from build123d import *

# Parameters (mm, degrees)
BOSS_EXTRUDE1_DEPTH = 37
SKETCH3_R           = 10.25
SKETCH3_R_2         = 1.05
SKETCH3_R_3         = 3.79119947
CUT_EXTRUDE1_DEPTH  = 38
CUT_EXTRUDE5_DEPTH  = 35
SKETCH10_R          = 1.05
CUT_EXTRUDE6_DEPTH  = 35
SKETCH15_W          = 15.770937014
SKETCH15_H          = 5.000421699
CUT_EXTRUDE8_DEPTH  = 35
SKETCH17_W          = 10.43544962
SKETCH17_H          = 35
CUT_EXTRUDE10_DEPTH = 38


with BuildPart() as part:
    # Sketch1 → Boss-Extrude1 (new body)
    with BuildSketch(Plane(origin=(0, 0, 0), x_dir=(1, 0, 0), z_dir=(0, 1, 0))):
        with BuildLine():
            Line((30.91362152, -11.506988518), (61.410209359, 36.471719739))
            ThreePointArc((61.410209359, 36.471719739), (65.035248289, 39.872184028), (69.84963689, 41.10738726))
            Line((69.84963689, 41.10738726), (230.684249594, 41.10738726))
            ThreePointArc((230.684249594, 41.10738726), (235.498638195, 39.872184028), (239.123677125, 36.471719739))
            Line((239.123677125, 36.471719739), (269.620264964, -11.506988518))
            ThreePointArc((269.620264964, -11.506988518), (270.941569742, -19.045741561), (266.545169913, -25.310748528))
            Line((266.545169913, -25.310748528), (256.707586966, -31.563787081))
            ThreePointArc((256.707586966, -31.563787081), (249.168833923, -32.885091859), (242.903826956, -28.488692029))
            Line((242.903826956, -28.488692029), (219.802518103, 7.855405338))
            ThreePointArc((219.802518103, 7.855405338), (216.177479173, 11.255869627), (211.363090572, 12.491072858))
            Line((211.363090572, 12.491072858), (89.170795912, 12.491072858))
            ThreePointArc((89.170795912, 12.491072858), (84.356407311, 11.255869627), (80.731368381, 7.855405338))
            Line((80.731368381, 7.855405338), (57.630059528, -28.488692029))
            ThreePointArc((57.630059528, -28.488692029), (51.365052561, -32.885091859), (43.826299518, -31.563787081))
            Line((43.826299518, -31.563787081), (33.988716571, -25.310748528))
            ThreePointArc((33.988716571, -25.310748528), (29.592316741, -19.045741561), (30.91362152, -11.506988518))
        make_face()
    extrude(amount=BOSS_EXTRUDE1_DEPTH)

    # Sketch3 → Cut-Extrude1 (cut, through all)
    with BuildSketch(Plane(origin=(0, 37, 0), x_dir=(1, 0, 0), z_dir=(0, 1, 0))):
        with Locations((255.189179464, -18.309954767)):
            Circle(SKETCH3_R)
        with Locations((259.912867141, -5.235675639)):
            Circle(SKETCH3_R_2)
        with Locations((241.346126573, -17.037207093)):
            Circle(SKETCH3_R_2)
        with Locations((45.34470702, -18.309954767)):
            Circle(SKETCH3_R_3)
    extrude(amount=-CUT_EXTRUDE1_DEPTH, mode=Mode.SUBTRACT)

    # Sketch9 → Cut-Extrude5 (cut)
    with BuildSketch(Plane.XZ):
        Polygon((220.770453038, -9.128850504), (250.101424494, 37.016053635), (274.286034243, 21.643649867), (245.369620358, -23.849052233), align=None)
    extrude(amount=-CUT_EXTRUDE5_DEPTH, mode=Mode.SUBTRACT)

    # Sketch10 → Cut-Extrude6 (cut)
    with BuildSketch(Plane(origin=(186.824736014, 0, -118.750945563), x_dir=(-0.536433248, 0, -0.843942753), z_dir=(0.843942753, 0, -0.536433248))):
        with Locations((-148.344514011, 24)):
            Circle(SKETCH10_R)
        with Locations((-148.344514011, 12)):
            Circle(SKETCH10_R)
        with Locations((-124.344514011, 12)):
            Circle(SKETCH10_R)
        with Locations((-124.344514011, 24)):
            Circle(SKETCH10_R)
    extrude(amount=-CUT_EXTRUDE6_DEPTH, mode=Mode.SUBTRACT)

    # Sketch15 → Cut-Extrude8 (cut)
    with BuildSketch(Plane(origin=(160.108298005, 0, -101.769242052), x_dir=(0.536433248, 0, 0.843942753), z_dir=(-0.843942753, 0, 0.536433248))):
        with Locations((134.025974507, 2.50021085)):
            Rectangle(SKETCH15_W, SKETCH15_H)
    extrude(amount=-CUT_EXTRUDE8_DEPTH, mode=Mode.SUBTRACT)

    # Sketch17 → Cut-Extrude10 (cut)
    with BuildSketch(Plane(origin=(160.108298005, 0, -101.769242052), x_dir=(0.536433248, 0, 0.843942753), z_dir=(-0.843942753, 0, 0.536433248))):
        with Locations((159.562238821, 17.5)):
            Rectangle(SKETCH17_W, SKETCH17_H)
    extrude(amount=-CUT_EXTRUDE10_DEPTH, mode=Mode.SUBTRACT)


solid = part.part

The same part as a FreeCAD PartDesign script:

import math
import FreeCAD as App
import Part
import Sketcher

V = App.Vector
Q = App.Units.Quantity


def add_polygon(sketch, points):
    """Adds a closed chain of lines whose ends are joined by coincident constraints."""
    first, n = sketch.GeometryCount, len(points)
    for a, b in zip(points, points[1:] + points[:1]):
        sketch.addGeometry(Part.LineSegment(App.Vector(*a, 0), App.Vector(*b, 0)), False)
    for i in range(n):
        sketch.addConstraint(Sketcher.Constraint("Coincident", first + i, 2, first + (i + 1) % n, 1))

doc = App.newDocument("Part")
body = doc.addObject("PartDesign::Body", "Body")

# Sketch on XZ plane
sketch1 = body.newObject("Sketcher::SketchObject", "Sketch")
sketch1.AttachmentSupport = (doc.getObject("XZ_Plane"), [""])
sketch1.MapMode = "FlatFace"
sketch1.addGeometry([
    Part.LineSegment(V(61.410209, -36.47172, 0), V(30.913622, 11.506989, 0)),  # 0
    Part.ArcOfCircle(Part.Circle(V(39.353049, 16.871321, 0), V(0, 0, 1), 10), math.radians(122.441163), math.radians(212.441163)),  # 1
    Part.LineSegment(V(33.988717, 25.310749, 0), V(43.8263, 31.563787, 0)),  # 2
    Part.ArcOfCircle(Part.Circle(V(49.190632, 23.12436, 0), V(0, 0, 1), 10), math.radians(32.441163), math.radians(122.441163)),  # 3
    Part.LineSegment(V(57.63006, 28.488692, 0), V(80.731368, -7.855405, 0)),  # 4
    Part.ArcOfCircle(Part.Circle(V(89.170796, -2.491073, 0), V(0, 0, 1), 10), math.radians(-147.558837), math.radians(-90)),  # 5
    Part.LineSegment(V(89.170796, -12.491073, 0), V(211.363091, -12.491073, 0)),  # 6
    Part.ArcOfCircle(Part.Circle(V(211.363091, -2.491073, 0), V(0, 0, 1), 10), math.radians(-90), math.radians(-32.441163)),  # 7
    Part.LineSegment(V(219.802518, -7.855405, 0), V(242.903827, 28.488692, 0)),  # 8
    Part.ArcOfCircle(Part.Circle(V(251.343254, 23.12436, 0), V(0, 0, 1), 10), math.radians(57.558837), math.radians(147.558837)),  # 9
    Part.LineSegment(V(256.707587, 31.563787, 0), V(266.54517, 25.310749, 0)),  # 10
    Part.ArcOfCircle(Part.Circle(V(261.180837, 16.871321, 0), V(0, 0, 1), 10), math.radians(-32.441163), math.radians(57.558837)),  # 11
    Part.LineSegment(V(269.620265, 11.506989, 0), V(239.123677, -36.47172, 0)),  # 12
    Part.ArcOfCircle(Part.Circle(V(230.68425, -31.107387, 0), V(0, 0, 1), 10), math.radians(-90), math.radians(-32.441163)),  # 13
    Part.LineSegment(V(230.68425, -41.107387, 0), V(69.849637, -41.107387, 0)),  # 14
    Part.ArcOfCircle(Part.Circle(V(69.849637, -31.107387, 0), V(0, 0, 1), 10), math.radians(-147.558837), math.radians(-90)),  # 15
], False)
sketch1.addConstraint([
    Sketcher.Constraint("Tangent", 0, 2, 1, 2),
    Sketcher.Constraint("Tangent", 1, 1, 2, 1),
    Sketcher.Constraint("Tangent", 2, 2, 3, 2),
    Sketcher.Constraint("Tangent", 3, 1, 4, 1),
    Sketcher.Constraint("Tangent", 4, 2, 5, 1),
    Sketcher.Constraint("Tangent", 5, 2, 6, 1),
    Sketcher.Constraint("Tangent", 6, 2, 7, 1),
    Sketcher.Constraint("Tangent", 7, 2, 8, 1),
    Sketcher.Constraint("Tangent", 8, 2, 9, 2),
    Sketcher.Constraint("Tangent", 9, 1, 10, 1),
    Sketcher.Constraint("Tangent", 10, 2, 11, 2),
    Sketcher.Constraint("Tangent", 11, 1, 12, 1),
    Sketcher.Constraint("Tangent", 12, 2, 13, 2),
    Sketcher.Constraint("Tangent", 13, 1, 14, 1),
    Sketcher.Constraint("Tangent", 14, 2, 15, 2),
    Sketcher.Constraint("Tangent", 15, 1, 0, 1),
    Sketcher.Constraint("Horizontal", 6),
    Sketcher.Constraint("Horizontal", 14),
    Sketcher.Constraint("Equal", 1, 3),
    Sketcher.Constraint("Equal", 3, 5),
    Sketcher.Constraint("Equal", 5, 7),
    Sketcher.Constraint("Equal", 7, 9),
    Sketcher.Constraint("Equal", 9, 11),
    Sketcher.Constraint("Equal", 11, 13),
    Sketcher.Constraint("Equal", 13, 15),
    Sketcher.Constraint("Perpendicular", 0, 2),
    Sketcher.Constraint("Perpendicular", 2, 4),
    Sketcher.Constraint("Perpendicular", 8, 10),
    Sketcher.Constraint("Perpendicular", 10, 12),
    Sketcher.Constraint("Horizontal", 3, 3, 9, 3),
    Sketcher.Constraint("Horizontal", 1, 3, 11, 3),
    Sketcher.Constraint("Horizontal", 4, 2, 7, 2),
    Sketcher.Constraint("Radius", 1, Q("10 mm")),
    Sketcher.Constraint("DistanceX", -1, 1, 2, 2, Q("43.8263 mm")),
    Sketcher.Constraint("DistanceY", 0, 2, 2, 2, Q("20.056799 mm")),
    Sketcher.Constraint("DistanceX", 6, 1, 6, 2, Q("122.192295 mm")),
    Sketcher.Constraint("DistanceX", 14, 2, 14, 1, Q("160.834613 mm")),
    Sketcher.Constraint("DistanceX", -1, 1, 1, 3, Q("39.353049 mm")),
    Sketcher.Constraint("DistanceY", -1, 1, 1, 3, Q("16.871321 mm")),
    Sketcher.Constraint("DistanceX", -1, 1, 7, 3, Q("211.363091 mm")),
])
pad1 = body.newObject("PartDesign::Pad", "Pad")
pad1.Profile = sketch1
pad1.Length = 37
pad1.Reversed = True

# Sketch on XZ plane
sketch2 = body.newObject("Sketcher::SketchObject", "Sketch001")
sketch2.AttachmentSupport = (doc.getObject("XZ_Plane"), [""])
sketch2.MapMode = "FlatFace"
sketch2.AttachmentOffset = App.Placement(V(0, 0, -37), App.Rotation())
sketch2.addGeometry([
    Part.Circle(V(255.189179, 18.309955, 0), V(0, 0, 1), 10.25),
    Part.Circle(V(259.912867, 5.235676, 0), V(0, 0, 1), 1.05),
    Part.Circle(V(241.346127, 17.037207, 0), V(0, 0, 1), 1.05),
    Part.Circle(V(45.344707, 18.309955, 0), V(0, 0, 1), 3.791199),
], False)
sketch2.addConstraint([
    Sketcher.Constraint("Equal", 1, 2),
    Sketcher.Constraint("Horizontal", 0, 3, 3, 3),
    Sketcher.Constraint("Diameter", 0, Q("20.5 mm")),
    Sketcher.Constraint("Diameter", 1, Q("2.1 mm")),
    Sketcher.Constraint("Diameter", 3, Q("7.582399 mm")),
    Sketcher.Constraint("DistanceX", -1, 1, 0, 3, Q("255.189179 mm")),
    Sketcher.Constraint("DistanceY", 1, 3, 0, 3, Q("13.074279 mm")),
    Sketcher.Constraint("DistanceX", 2, 3, 1, 3, Q("18.566741 mm")),
    Sketcher.Constraint("DistanceY", 1, 3, 2, 3, Q("11.801531 mm")),
    Sketcher.Constraint("DistanceX", 3, 3, 2, 3, Q("196.00142 mm")),
    Sketcher.Constraint("DistanceY", -1, 1, 0, 3, Q("18.309955 mm")),
    Sketcher.Constraint("DistanceX", -1, 1, 1, 3, Q("259.912867 mm")),
])
pocket1 = body.newObject("PartDesign::Pocket", "Pocket")
pocket1.Profile = sketch2
pocket1.Type = "ThroughAll"
pocket1.Reversed = True

# Sketch on XZ plane
sketch3 = body.newObject("Sketcher::SketchObject", "Sketch002")
sketch3.AttachmentSupport = (doc.getObject("XZ_Plane"), [""])
sketch3.MapMode = "FlatFace"
add_polygon(sketch3, [(250.101424, 37.016054), (220.770453, -9.128851), (245.36962, -23.849052), (274.286034, 21.64365)])  # lines 0-3
sketch3.addConstraint([
    Sketcher.Constraint("Parallel", 0, 2),
    Sketcher.Constraint("Perpendicular", 2, 3),
    Sketcher.Constraint("DistanceY", 1, 2, 0, 2, Q("14.720202 mm")),
    Sketcher.Constraint("DistanceY", 0, 2, 2, 2, Q("30.7725 mm")),
    Sketcher.Constraint("DistanceY", 0, 2, -1, 1, Q("9.128851 mm")),
    Sketcher.Constraint("DistanceX", -1, 1, 1, 2, Q("245.36962 mm")),
    Sketcher.Constraint("DistanceX", 0, 2, 2, 2, Q("53.515581 mm")),
    Sketcher.Constraint("DistanceX", 3, 2, 2, 2, Q("24.18461 mm")),
])
pocket2 = body.newObject("PartDesign::Pocket", "Pocket001")
pocket2.Profile = sketch3
pocket2.Length = 35

# Sketch on an angled plane
sketch4 = body.newObject("Sketcher::SketchObject", "Sketch003")
sketch4.Placement = App.Placement(V(186.824736, 0, -118.750946), App.Rotation(V(-0.536433248, 0, -0.843942753), V(0, 1, 0), V(0.843942753, 0, -0.536433248), "ZXY"))
sketch4.addGeometry([
    Part.Circle(V(-148.344514, 24, 0), V(0, 0, 1), 1.05),
    Part.Circle(V(-148.344514, 12, 0), V(0, 0, 1), 1.05),
    Part.Circle(V(-124.344514, 12, 0), V(0, 0, 1), 1.05),
    Part.Circle(V(-124.344514, 24, 0), V(0, 0, 1), 1.05),
], False)
sketch4.addConstraint([
    Sketcher.Constraint("Equal", 0, 1),
    Sketcher.Constraint("Equal", 1, 2),
    Sketcher.Constraint("Equal", 2, 3),
    Sketcher.Constraint("Horizontal", 1, 3, 2, 3),
    Sketcher.Constraint("Horizontal", 0, 3, 3, 3),
    Sketcher.Constraint("Vertical", 0, 3, 1, 3),
    Sketcher.Constraint("Vertical", 2, 3, 3, 3),
    Sketcher.Constraint("Diameter", 0, Q("2.1 mm")),
    Sketcher.Constraint("DistanceY", -1, 1, 0, 3, Q("24 mm")),
    Sketcher.Constraint("DistanceY", -1, 1, 1, 3, Q("12 mm")),
    Sketcher.Constraint("DistanceX", 1, 3, 2, 3, Q("24 mm")),
    Sketcher.Constraint("DistanceX", 0, 3, -1, 1, Q("148.344514 mm")),
])
pocket3 = body.newObject("PartDesign::Pocket", "Pocket002")
pocket3.Profile = sketch4
pocket3.Length = 35

# Sketch on an angled plane
sketch5 = body.newObject("Sketcher::SketchObject", "Sketch004")
sketch5.Placement = App.Placement(V(160.108298, 0, -101.769242), App.Rotation(V(0.536433248, 0, 0.843942753), V(0, 1, 0), V(-0.843942753, 0, 0.536433248), "ZXY"))
add_polygon(sketch5, [(126.140506, 5.000422), (126.140506, 0), (141.911443, 0), (141.911443, 5.000422)])  # lines 0-3
sketch5.addConstraint([
    Sketcher.Constraint("Vertical", 0),
    Sketcher.Constraint("Horizontal", 1),
    Sketcher.Constraint("Vertical", 2),
    Sketcher.Constraint("Horizontal", 3),
    Sketcher.Constraint("PointOnObject", 0, 2, -1),
    Sketcher.Constraint("DistanceY", 0, 2, 0, 1, Q("5.000422 mm")),
    Sketcher.Constraint("DistanceX", 1, 1, 1, 2, Q("15.770937 mm")),
    Sketcher.Constraint("DistanceX", -1, 1, 0, 2, Q("126.140506 mm")),
])
pocket4 = body.newObject("PartDesign::Pocket", "Pocket003")
pocket4.Profile = sketch5
pocket4.Length = 35

# Sketch on an angled plane
sketch6 = body.newObject("Sketcher::SketchObject", "Sketch005")
sketch6.Placement = App.Placement(V(160.108298, 0, -101.769242), App.Rotation(V(0.536433248, 0, 0.843942753), V(0, 1, 0), V(-0.843942753, 0, 0.536433248), "ZXY"))
add_polygon(sketch6, [(154.344514, 35), (154.344514, 0), (164.779964, 0), (164.779964, 35)])  # lines 0-3
sketch6.addConstraint([
    Sketcher.Constraint("Vertical", 0),
    Sketcher.Constraint("Horizontal", 1),
    Sketcher.Constraint("Vertical", 2),
    Sketcher.Constraint("Horizontal", 3),
    Sketcher.Constraint("PointOnObject", 0, 2, -1),
    Sketcher.Constraint("DistanceY", 0, 2, 0, 1, Q("35 mm")),
    Sketcher.Constraint("DistanceX", 1, 1, 1, 2, Q("10.43545 mm")),
    Sketcher.Constraint("DistanceX", -1, 1, 0, 2, Q("154.344514 mm")),
])
pocket5 = body.newObject("PartDesign::Pocket", "Pocket004")
pocket5.Profile = sketch6
pocket5.Length = 38

doc.recompute()
